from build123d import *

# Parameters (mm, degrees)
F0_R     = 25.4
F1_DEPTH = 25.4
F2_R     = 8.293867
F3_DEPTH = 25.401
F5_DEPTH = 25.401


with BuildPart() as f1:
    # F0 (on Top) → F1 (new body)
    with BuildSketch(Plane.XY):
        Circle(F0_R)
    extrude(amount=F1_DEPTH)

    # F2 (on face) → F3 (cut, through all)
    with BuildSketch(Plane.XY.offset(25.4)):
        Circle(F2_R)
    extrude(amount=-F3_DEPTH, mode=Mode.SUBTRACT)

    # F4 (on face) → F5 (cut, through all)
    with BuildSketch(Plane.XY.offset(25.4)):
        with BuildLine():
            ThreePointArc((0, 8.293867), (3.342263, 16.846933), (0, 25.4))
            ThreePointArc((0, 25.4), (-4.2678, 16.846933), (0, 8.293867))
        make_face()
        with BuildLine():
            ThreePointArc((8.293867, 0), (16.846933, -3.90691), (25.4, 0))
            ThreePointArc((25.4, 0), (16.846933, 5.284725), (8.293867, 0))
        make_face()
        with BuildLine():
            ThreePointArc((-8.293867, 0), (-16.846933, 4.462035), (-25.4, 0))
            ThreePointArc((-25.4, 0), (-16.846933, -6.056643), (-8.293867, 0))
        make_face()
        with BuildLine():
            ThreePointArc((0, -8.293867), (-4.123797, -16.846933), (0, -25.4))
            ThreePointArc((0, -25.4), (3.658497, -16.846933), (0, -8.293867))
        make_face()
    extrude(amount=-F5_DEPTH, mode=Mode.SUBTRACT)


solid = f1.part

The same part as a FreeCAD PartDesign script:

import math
import FreeCAD as App
import Part
import Sketcher
Q = App.Units.Quantity

doc = App.newDocument("Part")
body = doc.addObject("PartDesign::Body", "Body")
body.AllowCompound = True

# Sketch on XY plane
sketch1 = doc.addObject("Sketcher::SketchObject", "Sketch")
body.addObject(sketch1)
sketch1.AttachmentSupport = (doc.XY_Plane, [""])
sketch1.MapMode = "FlatFace"
sketch1.addGeometry(Part.Circle(App.Vector(0, 0, 0), App.Vector(0, 0, 1), 25), False)
sketch1.addConstraint([
    Sketcher.Constraint("Coincident", 0, 3, -1, 1),
    Sketcher.Constraint("Diameter", 0, Q("2 in")),
])
pad1 = doc.addObject("PartDesign::Pad", "Pad")
body.addObject(pad1)
pad1.Profile = sketch1
pad1.Length = Q("1 in")

# Sketch on XY plane
sketch2 = doc.addObject("Sketcher::SketchObject", "Sketch001")
body.addObject(sketch2)
sketch2.AttachmentSupport = (doc.XY_Plane, [""])
sketch2.MapMode = "FlatFace"
sketch2.AttachmentOffset = App.Placement(App.Vector(0, 0, 1 * 25.4), App.Rotation())
sketch2.addGeometry(Part.Circle(App.Vector(0, 0, 0), App.Vector(0, 0, 1), 8), False)
sketch2.addConstraint([
    Sketcher.Constraint("Coincident", 0, 3, -1, 1),
    Sketcher.Constraint("Diameter", 0, Q("16.587734 mm")),
])
pocket1 = doc.addObject("PartDesign::Pocket", "Pocket")
body.addObject(pocket1)
pocket1.Profile = sketch2
pocket1.Type = "ThroughAll"

# Sketch on XY plane
sketch3 = doc.addObject("Sketcher::SketchObject", "Sketch002")
body.addObject(sketch3)
sketch3.AttachmentSupport = (doc.XY_Plane, [""])
sketch3.MapMode = "FlatFace"
sketch3.AttachmentOffset = App.Placement(App.Vector(0, 0, 1 * 25.4), App.Rotation())
sketch3.addGeometry([
    Part.ArcOfCircle(Part.Circle(App.Vector(-9, 17, 0), App.Vector(0, 0, 1), 13), math.radians(-43), math.radians(43)),  # 0
    Part.ArcOfCircle(Part.Circle(App.Vector(6, 17, 0), App.Vector(0, 0, 1), 11), math.radians(127), math.radians(233)),  # 1
    Part.ArcOfCircle(Part.Circle(App.Vector(17, 7, 0), App.Vector(0, 0, 1), 11), math.radians(-139), math.radians(-41)),  # 2
    Part.ArcOfCircle(Part.Circle(App.Vector(17, -4, 0), App.Vector(0, 0, 1), 10), math.radians(27), math.radians(153)),  # 3
    Part.ArcOfCircle(Part.Circle(App.Vector(-17, -6, 0), App.Vector(0, 0, 1), 10), math.radians(35), math.radians(145)),  # 4
    Part.ArcOfCircle(Part.Circle(App.Vector(-17, 3, 0), App.Vector(0, 0, 1), 9), math.radians(-161), math.radians(-19)),  # 5
    Part.ArcOfCircle(Part.Circle(App.Vector(7, -17, 0), App.Vector(0, 0, 1), 11), math.radians(129), math.radians(231)),  # 6
    Part.ArcOfCircle(Part.Circle(App.Vector(-8, -17, 0), App.Vector(0, 0, 1), 12), math.radians(-46), math.radians(46)),  # 7
], False)
sketch3.addConstraint([
    Sketcher.Constraint("Coincident", 0, 1, 1, 2),
    Sketcher.Constraint("Coincident", 1, 1, 0, 2),
    Sketcher.Constraint("Coincident", 2, 1, 3, 2),
    Sketcher.Constraint("Coincident", 3, 1, 2, 2),
    Sketcher.Constraint("Coincident", 4, 1, 5, 2),
    Sketcher.Constraint("Coincident", 5, 1, 4, 2),
    Sketcher.Constraint("Coincident", 6, 1, 7, 2),
    Sketcher.Constraint("Coincident", 7, 1, 6, 2),
    Sketcher.Constraint("Symmetric", 2, 1, 4, 1, -1, 1),
    Sketcher.Constraint("Symmetric", 3, 1, 5, 1, -1, 1),
    Sketcher.Constraint("Symmetric", 0, 1, 6, 1, -1, 1),
    Sketcher.Constraint("Symmetric", 1, 1, 7, 1, -1, 1),
    Sketcher.Constraint("PointOnObject", 0, 1, -2),
    Sketcher.Constraint("PointOnObject", 1, 1, -2),
    Sketcher.Constraint("PointOnObject", 2, 1, -1),
    Sketcher.Constraint("PointOnObject", 3, 1, -1),
    Sketcher.Constraint("DistanceY", -1, 1, 1, 1, Q("1 in")),
    Sketcher.Constraint("DistanceX", -1, 1, 3, 1, Q("1 in")),
    Sketcher.Constraint("Radius", 7, Q("11.827199 mm")),
    Sketcher.Constraint("Radius", 1, Q("10.704469 mm")),
    Sketcher.Constraint("Radius", 3, Q("9.56372 mm")),
    Sketcher.Constraint("Radius", 6, Q("10.931752 mm")),
    Sketcher.Constraint("Radius", 0, Q("12.615056 mm")),
    Sketcher.Constraint("Radius", 2, Q("11.315706 mm")),
    Sketcher.Constraint("Radius", 4, Q("10.428504 mm")),
    Sketcher.Constraint("Radius", 5, Q("9.067554 mm")),
    Sketcher.Constraint("DistanceX", 1, 3, 2, 1, Q("1.857198 mm")),
    Sketcher.Constraint("DistanceX", -1, 1, 1, 3, Q("6.436669 mm")),
])
pocket2 = doc.addObject("PartDesign::Pocket", "Pocket001")
body.addObject(pocket2)
pocket2.Profile = sketch3
pocket2.Type = "ThroughAll"

doc.recompute()
